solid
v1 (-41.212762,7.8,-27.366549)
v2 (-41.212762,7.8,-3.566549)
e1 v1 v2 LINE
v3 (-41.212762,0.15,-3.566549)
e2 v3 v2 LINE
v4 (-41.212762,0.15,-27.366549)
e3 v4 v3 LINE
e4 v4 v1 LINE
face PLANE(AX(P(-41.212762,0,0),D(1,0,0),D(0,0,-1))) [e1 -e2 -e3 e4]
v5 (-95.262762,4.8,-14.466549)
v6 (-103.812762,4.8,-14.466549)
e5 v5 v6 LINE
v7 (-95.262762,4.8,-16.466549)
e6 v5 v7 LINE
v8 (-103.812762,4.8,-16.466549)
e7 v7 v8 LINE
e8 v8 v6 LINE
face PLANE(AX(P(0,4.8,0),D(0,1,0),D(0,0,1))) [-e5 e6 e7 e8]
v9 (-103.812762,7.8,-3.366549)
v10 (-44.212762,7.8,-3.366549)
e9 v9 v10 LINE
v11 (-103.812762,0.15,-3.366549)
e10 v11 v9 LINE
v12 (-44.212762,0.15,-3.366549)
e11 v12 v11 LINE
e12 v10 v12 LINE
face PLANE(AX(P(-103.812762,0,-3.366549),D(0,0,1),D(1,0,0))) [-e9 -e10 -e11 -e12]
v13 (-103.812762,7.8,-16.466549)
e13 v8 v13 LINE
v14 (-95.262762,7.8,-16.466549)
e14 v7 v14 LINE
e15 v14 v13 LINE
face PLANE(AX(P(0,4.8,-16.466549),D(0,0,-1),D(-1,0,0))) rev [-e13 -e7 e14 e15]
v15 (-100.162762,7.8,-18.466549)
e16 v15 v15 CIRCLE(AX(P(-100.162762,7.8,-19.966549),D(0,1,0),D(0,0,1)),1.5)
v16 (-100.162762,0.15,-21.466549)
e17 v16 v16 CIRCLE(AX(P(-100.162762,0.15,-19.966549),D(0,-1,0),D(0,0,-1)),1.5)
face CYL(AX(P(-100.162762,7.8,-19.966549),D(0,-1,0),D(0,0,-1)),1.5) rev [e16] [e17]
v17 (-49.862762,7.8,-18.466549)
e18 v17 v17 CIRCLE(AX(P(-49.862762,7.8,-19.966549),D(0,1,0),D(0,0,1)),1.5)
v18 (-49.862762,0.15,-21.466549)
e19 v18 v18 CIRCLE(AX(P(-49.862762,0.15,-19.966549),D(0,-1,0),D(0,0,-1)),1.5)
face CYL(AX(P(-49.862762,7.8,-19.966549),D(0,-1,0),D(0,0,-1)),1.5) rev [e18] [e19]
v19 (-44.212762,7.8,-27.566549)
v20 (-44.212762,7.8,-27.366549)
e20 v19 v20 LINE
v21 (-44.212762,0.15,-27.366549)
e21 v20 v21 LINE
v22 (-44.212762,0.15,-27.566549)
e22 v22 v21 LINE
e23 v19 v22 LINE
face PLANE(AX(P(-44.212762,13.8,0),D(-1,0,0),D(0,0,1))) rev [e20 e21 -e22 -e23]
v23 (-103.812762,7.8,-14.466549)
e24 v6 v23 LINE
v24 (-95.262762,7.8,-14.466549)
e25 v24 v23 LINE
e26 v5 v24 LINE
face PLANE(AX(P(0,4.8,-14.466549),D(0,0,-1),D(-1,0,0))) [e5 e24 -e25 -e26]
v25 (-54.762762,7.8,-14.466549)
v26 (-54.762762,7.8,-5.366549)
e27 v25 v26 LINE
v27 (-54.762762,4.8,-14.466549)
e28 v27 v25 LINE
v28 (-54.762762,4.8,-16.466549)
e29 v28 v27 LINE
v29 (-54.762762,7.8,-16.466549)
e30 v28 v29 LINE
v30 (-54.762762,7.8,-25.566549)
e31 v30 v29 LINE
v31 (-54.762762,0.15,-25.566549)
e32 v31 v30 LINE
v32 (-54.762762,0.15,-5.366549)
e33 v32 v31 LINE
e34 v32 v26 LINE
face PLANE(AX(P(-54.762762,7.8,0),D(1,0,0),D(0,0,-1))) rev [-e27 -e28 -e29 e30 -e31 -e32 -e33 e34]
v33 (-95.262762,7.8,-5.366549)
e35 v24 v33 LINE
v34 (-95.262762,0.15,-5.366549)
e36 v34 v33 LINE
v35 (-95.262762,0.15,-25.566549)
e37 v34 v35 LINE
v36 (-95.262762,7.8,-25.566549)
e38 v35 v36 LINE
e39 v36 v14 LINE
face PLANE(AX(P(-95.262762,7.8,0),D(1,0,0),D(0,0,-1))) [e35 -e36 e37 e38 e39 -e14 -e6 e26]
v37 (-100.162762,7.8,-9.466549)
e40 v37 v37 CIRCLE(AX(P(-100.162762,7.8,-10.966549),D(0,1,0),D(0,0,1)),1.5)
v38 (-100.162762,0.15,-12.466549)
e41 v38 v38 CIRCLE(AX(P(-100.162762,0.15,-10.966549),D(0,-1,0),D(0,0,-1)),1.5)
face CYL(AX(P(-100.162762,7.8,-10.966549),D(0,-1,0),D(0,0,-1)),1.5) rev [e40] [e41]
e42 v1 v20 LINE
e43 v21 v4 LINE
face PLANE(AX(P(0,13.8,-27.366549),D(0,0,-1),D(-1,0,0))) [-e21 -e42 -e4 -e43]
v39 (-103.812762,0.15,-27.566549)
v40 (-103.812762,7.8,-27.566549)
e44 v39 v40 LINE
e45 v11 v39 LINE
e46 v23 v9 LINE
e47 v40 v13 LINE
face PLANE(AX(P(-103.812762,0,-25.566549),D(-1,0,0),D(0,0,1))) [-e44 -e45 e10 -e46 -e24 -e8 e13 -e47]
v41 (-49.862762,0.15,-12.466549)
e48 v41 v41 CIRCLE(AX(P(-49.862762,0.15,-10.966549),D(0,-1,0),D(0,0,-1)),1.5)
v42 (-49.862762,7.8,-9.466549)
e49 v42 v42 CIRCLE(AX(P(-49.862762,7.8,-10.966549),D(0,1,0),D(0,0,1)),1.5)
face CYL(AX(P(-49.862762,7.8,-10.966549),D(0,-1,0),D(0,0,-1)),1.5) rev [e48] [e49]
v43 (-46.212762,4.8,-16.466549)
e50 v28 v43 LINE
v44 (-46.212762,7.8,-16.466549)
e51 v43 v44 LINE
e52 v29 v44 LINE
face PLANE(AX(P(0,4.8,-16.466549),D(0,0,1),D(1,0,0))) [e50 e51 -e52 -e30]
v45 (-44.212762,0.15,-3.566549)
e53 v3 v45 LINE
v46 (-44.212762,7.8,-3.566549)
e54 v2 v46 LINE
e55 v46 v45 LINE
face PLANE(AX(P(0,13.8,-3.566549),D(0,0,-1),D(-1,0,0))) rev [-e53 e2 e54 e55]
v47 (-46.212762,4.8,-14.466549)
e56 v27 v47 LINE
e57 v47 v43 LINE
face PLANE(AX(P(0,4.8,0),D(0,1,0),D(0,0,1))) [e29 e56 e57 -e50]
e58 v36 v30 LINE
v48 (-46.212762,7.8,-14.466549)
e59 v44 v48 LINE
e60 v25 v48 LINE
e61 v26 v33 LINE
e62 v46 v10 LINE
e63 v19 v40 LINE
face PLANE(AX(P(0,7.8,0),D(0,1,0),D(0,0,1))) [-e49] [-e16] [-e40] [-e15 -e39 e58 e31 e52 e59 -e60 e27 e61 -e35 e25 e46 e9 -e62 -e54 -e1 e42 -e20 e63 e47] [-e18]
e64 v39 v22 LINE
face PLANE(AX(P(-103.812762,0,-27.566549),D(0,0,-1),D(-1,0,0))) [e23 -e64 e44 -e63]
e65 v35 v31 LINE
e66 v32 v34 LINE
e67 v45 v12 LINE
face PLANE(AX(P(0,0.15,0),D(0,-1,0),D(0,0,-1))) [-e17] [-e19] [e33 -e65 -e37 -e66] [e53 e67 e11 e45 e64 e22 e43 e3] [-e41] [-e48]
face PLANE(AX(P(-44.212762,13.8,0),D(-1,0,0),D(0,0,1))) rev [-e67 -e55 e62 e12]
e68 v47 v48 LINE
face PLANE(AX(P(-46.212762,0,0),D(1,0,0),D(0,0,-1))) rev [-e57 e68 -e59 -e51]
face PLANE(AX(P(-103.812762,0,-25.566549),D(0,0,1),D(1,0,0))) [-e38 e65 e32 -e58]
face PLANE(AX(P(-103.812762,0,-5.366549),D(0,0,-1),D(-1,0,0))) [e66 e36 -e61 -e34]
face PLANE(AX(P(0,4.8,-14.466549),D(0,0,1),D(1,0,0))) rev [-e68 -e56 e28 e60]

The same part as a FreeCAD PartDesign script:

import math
import FreeCAD as App
import Part
import Sketcher
Q = App.Units.Quantity

doc = App.newDocument("Part")
body = doc.addObject("PartDesign::Body", "Body")

# Sketch on XZ plane
sketch1 = doc.addObject("Sketcher::SketchObject", "Sketch")
body.addObject(sketch1)
sketch1.AttachmentSupport = (doc.XZ_Plane, [""])
sketch1.MapMode = "FlatFace"
sketch1.addGeometry(Part.LineSegment(App.Vector(-54.8, -25.5, 0), App.Vector(-54.8, -5.5, 0)), False)
sketch1.addGeometry(Part.LineSegment(App.Vector(-54.8, -5.5, 0), App.Vector(-48.2, -5.5, 0)), False)
sketch1.addGeometry(Part.LineSegment(App.Vector(-48.2, -5.5, 0), App.Vector(-48.2, -25.5, 0)), False)
sketch1.addGeometry(Part.LineSegment(App.Vector(-48.2, -25.5, 0), App.Vector(-54.8, -25.5, 0)), False)
sketch1.addGeometry(Part.Circle(App.Vector(-49.9, -11, 0), App.Vector(0, 0, 1), 1.5), False)
sketch1.addGeometry(Part.Circle(App.Vector(-49.9, -20, 0), App.Vector(0, 0, 1), 1.5), False)
sketch1.addConstraint(Sketcher.Constraint("Coincident", 0, 2, 1, 1))
sketch1.addConstraint(Sketcher.Constraint("Coincident", 1, 2, 2, 1))
sketch1.addConstraint(Sketcher.Constraint("Coincident", 2, 2, 3, 1))
sketch1.addConstraint(Sketcher.Constraint("Coincident", 3, 2, 0, 1))
sketch1.addConstraint(Sketcher.Constraint("Vertical", 0))
sketch1.addConstraint(Sketcher.Constraint("Horizontal", 1))
sketch1.addConstraint(Sketcher.Constraint("Vertical", 2))
sketch1.addConstraint(Sketcher.Constraint("Horizontal", 3))
sketch1.addConstraint(Sketcher.Constraint("Equal", 4, 5))
sketch1.addConstraint(Sketcher.Constraint("Vertical", 4, 3, 5, 3))
sketch1.addConstraint(Sketcher.Constraint("Diameter", 4, Q("3 mm")))
sketch1.addConstraint(Sketcher.Constraint("DistanceY", 0, 1, 0, 2, Q("20 mm")))
sketch1.addConstraint(Sketcher.Constraint("DistanceY", 5, 3, 4, 3, Q("9 mm")))
sketch1.addConstraint(Sketcher.Constraint("DistanceX", 1, 1, 1, 2, Q("6.55 mm")))
sketch1.addConstraint(Sketcher.Constraint("DistanceX", 0, 2, 4, 3, Q("4.9 mm")))
sketch1.addConstraint(Sketcher.Constraint("DistanceY", 4, 3, 0, 2, Q("5.5 mm")))
sketch1.addConstraint(Sketcher.Constraint("DistanceX", 4, 3, -1, 1, Q("49.862762 mm")))
sketch1.addConstraint(Sketcher.Constraint("DistanceY", 4, 3, -1, 1, Q("10.966549 mm")))
pad1 = doc.addObject("PartDesign::Pad", "Pad")
body.addObject(pad1)
pad1.Profile = sketch1
pad1.Length = 7.8
pad1.Reversed = True
body2 = doc.addObject("PartDesign::Body", "Body001")

# Sketch on XZ plane
sketch2 = doc.addObject("Sketcher::SketchObject", "Sketch001")
body2.addObject(sketch2)
sketch2.AttachmentSupport = (doc.getObject("XZ_Plane001"), [""])
sketch2.MapMode = "FlatFace"
sketch2.addGeometry(Part.LineSegment(App.Vector(-101.8, -5.5, 0), App.Vector(-95.3, -5.5, 0)), False)
sketch2.addGeometry(Part.LineSegment(App.Vector(-95.3, -5.5, 0), App.Vector(-95.3, -25.5, 0)), False)
sketch2.addGeometry(Part.LineSegment(App.Vector(-95.3, -25.5, 0), App.Vector(-101.8, -25.5, 0)), False)
sketch2.addGeometry(Part.LineSegment(App.Vector(-101.8, -25.5, 0), App.Vector(-101.8, -5.5, 0)), False)
sketch2.addGeometry(Part.Circle(App.Vector(-100.2, -11, 0), App.Vector(0, 0, 1), 1.5), False)
sketch2.addGeometry(Part.Circle(App.Vector(-100.2, -20, 0), App.Vector(0, 0, 1), 1.5), False)
sketch2.addConstraint(Sketcher.Constraint("Coincident", 0, 2, 1, 1))
sketch2.addConstraint(Sketcher.Constraint("Coincident", 1, 2, 2, 1))
sketch2.addConstraint(Sketcher.Constraint("Coincident", 2, 2, 3, 1))
sketch2.addConstraint(Sketcher.Constraint("Coincident", 3, 2, 0, 1))
sketch2.addConstraint(Sketcher.Constraint("Horizontal", 0))
sketch2.addConstraint(Sketcher.Constraint("Vertical", 1))
sketch2.addConstraint(Sketcher.Constraint("Horizontal", 2))
sketch2.addConstraint(Sketcher.Constraint("Vertical", 3))
sketch2.addConstraint(Sketcher.Constraint("Equal", 4, 5))
sketch2.addConstraint(Sketcher.Constraint("Vertical", 4, 3, 5, 3))
sketch2.addConstraint(Sketcher.Constraint("Diameter", 4, Q("3 mm")))
sketch2.addConstraint(Sketcher.Constraint("DistanceY", 1, 2, 1, 1, Q("20 mm")))
sketch2.addConstraint(Sketcher.Constraint("DistanceY", 5, 3, 4, 3, Q("9 mm")))
sketch2.addConstraint(Sketcher.Constraint("DistanceX", 0, 1, 0, 2, Q("6.55 mm")))
sketch2.addConstraint(Sketcher.Constraint("DistanceX", 4, 3, 0, 2, Q("4.9 mm")))
sketch2.addConstraint(Sketcher.Constraint("DistanceY", 4, 3, 0, 2, Q("5.5 mm")))
sketch2.addConstraint(Sketcher.Constraint("DistanceX", 4, 3, -1, 1, Q("100.162762 mm")))
sketch2.addConstraint(Sketcher.Constraint("DistanceY", 4, 3, -1, 1, Q("10.966549 mm")))
pad2 = doc.addObject("PartDesign::Pad", "Pad001")
body2.addObject(pad2)
pad2.Profile = sketch2
pad2.Length = 7.8
pad2.Reversed = True
body.AllowCompound = True
doc.recompute()

boolean = doc.addObject("PartDesign::Boolean", "Boolean")
body.addObject(boolean)
boolean.Type = "Fuse"
boolean.addObjects([body2])

# Sketch on XZ plane
sketch3 = doc.addObject("Sketcher::SketchObject", "Sketch002")
body.addObject(sketch3)
sketch3.AttachmentSupport = (doc.XZ_Plane, [""])
sketch3.MapMode = "FlatFace"
sketch3.AttachmentOffset = App.Placement(App.Vector(0, 0, -7.8), App.Rotation())
sketch3.addGeometry(Part.LineSegment(App.Vector(-48.2, -25.5, 0), App.Vector(-48.2, -5.5, 0)), False)
sketch3.addGeometry(Part.LineSegment(App.Vector(-48.2, -5.5, 0), App.Vector(-46.2, -5.5, 0)), False)
sketch3.addGeometry(Part.LineSegment(App.Vector(-46.2, -5.5, 0), App.Vector(-46.2, -25.5, 0)), False)
sketch3.addGeometry(Part.LineSegment(App.Vector(-46.2, -25.5, 0), App.Vector(-48.2, -25.5, 0)), False)
sketch3.addGeometry(Part.LineSegment(App.Vector(-103.8, -25.5, 0), App.Vector(-103.8, -5.5, 0)), False)
sketch3.addGeometry(Part.LineSegment(App.Vector(-103.8, -5.5, 0), App.Vector(-101.8, -5.5, 0)), False)
sketch3.addGeometry(Part.LineSegment(App.Vector(-101.8, -5.5, 0), App.Vector(-101.8, -25.5, 0)), False)
sketch3.addGeometry(Part.LineSegment(App.Vector(-101.8, -25.5, 0), App.Vector(-103.8, -25.5, 0)), False)
sketch3.addConstraint(Sketcher.Constraint("Coincident", 0, 2, 1, 1))
sketch3.addConstraint(Sketcher.Constraint("Coincident", 1, 2, 2, 1))
sketch3.addConstraint(Sketcher.Constraint("Coincident", 2, 2, 3, 1))
sketch3.addConstraint(Sketcher.Constraint("Coincident", 3, 2, 0, 1))
sketch3.addConstraint(Sketcher.Constraint("Coincident", 4, 2, 5, 1))
sketch3.addConstraint(Sketcher.Constraint("Coincident", 5, 2, 6, 1))
sketch3.addConstraint(Sketcher.Constraint("Coincident", 6, 2, 7, 1))
sketch3.addConstraint(Sketcher.Constraint("Coincident", 7, 2, 4, 1))
sketch3.addConstraint(Sketcher.Constraint("Vertical", 0))
sketch3.addConstraint(Sketcher.Constraint("Horizontal", 1))
sketch3.addConstraint(Sketcher.Constraint("Vertical", 2))
sketch3.addConstraint(Sketcher.Constraint("Horizontal", 3))
sketch3.addConstraint(Sketcher.Constraint("Vertical", 4))
sketch3.addConstraint(Sketcher.Constraint("Horizontal", 5))
sketch3.addConstraint(Sketcher.Constraint("Vertical", 6))
sketch3.addConstraint(Sketcher.Constraint("Horizontal", 7))
sketch3.addConstraint(Sketcher.Constraint("Horizontal", 1, 2, 4, 2))
sketch3.addConstraint(Sketcher.Constraint("Horizontal", 3, 2, 6, 2))
sketch3.addConstraint(Sketcher.Constraint("Equal", 3, 5))
sketch3.addConstraint(Sketcher.Constraint("DistanceX", 1, 1, 1, 2, Q("2 mm")))
sketch3.addConstraint(Sketcher.Constraint("DistanceY", 0, 1, 0, 2, Q("20 mm")))
sketch3.addConstraint(Sketcher.Constraint("DistanceX", 4, 2, 0, 2, Q("55.6 mm")))
sketch3.addConstraint(Sketcher.Constraint("DistanceX", 0, 2, -1, 1, Q("48.212762 mm")))
sketch3.addConstraint(Sketcher.Constraint("DistanceY", 0, 2, -1, 1, Q("5.466549 mm")))
pad3 = doc.addObject("PartDesign::Pad", "Pad002")
body.addObject(pad3)
pad3.Profile = sketch3
pad3.Length = 7.8

# Sketch on XZ plane
sketch4 = doc.addObject("Sketcher::SketchObject", "Sketch003")
body.addObject(sketch4)
sketch4.AttachmentSupport = (doc.XZ_Plane, [""])
sketch4.MapMode = "FlatFace"
sketch4.AttachmentOffset = App.Placement(App.Vector(0, 0, -7.8), App.Rotation())
sketch4.addGeometry(Part.LineSegment(App.Vector(-103.81, -5.47, 0), App.Vector(-103.81, -5.37, 0)), False)
sketch4.addGeometry(Part.LineSegment(App.Vector(-103.81, -5.37, 0), App.Vector(-95.26, -5.37, 0)), False)
sketch4.addGeometry(Part.LineSegment(App.Vector(-95.26, -5.37, 0), App.Vector(-95.26, -5.47, 0)), False)
sketch4.addGeometry(Part.LineSegment(App.Vector(-95.26, -5.47, 0), App.Vector(-103.81, -5.47, 0)), False)
sketch4.addGeometry(Part.LineSegment(App.Vector(-103.81, -25.57, 0), App.Vector(-103.81, -25.47, 0)), False)
sketch4.addGeometry(Part.LineSegment(App.Vector(-103.81, -25.47, 0), App.Vector(-95.26, -25.47, 0)), False)
sketch4.addGeometry(Part.LineSegment(App.Vector(-95.26, -25.47, 0), App.Vector(-95.26, -25.57, 0)), False)
sketch4.addGeometry(Part.LineSegment(App.Vector(-95.26, -25.57, 0), App.Vector(-103.81, -25.57, 0)), False)
sketch4.addGeometry(Part.LineSegment(App.Vector(-54.76, -25.57, 0), App.Vector(-54.76, -25.47, 0)), False)
sketch4.addGeometry(Part.LineSegment(App.Vector(-54.76, -25.47, 0), App.Vector(-46.21, -25.47, 0)), False)
sketch4.addGeometry(Part.LineSegment(App.Vector(-46.21, -25.47, 0), App.Vector(-46.21, -25.57, 0)), False)
sketch4.addGeometry(Part.LineSegment(App.Vector(-46.21, -25.57, 0), App.Vector(-54.76, -25.57, 0)), False)
sketch4.addGeometry(Part.LineSegment(App.Vector(-54.76, -5.47, 0), App.Vector(-54.76, -5.37, 0)), False)
sketch4.addGeometry(Part.LineSegment(App.Vector(-54.76, -5.37, 0), App.Vector(-46.21, -5.37, 0)), False)
sketch4.addGeometry(Part.LineSegment(App.Vector(-46.21, -5.37, 0), App.Vector(-46.21, -5.47, 0)), False)
sketch4.addGeometry(Part.LineSegment(App.Vector(-46.21, -5.47, 0), App.Vector(-54.76, -5.47, 0)), False)
sketch4.addConstraint(Sketcher.Constraint("Coincident", 0, 2, 1, 1))
sketch4.addConstraint(Sketcher.Constraint("Coincident", 1, 2, 2, 1))
sketch4.addConstraint(Sketcher.Constraint("Coincident", 2, 2, 3, 1))
sketch4.addConstraint(Sketcher.Constraint("Coincident", 3, 2, 0, 1))
sketch4.addConstraint(Sketcher.Constraint("Coincident", 4, 2, 5, 1))
sketch4.addConstraint(Sketcher.Constraint("Coincident", 5, 2, 6, 1))
sketch4.addConstraint(Sketcher.Constraint("Coincident", 6, 2, 7, 1))
sketch4.addConstraint(Sketcher.Constraint("Coincident", 7, 2, 4, 1))
sketch4.addConstraint(Sketcher.Constraint("Coincident", 8, 2, 9, 1))
sketch4.addConstraint(Sketcher.Constraint("Coincident", 9, 2, 10, 1))
sketch4.addConstraint(Sketcher.Constraint("Coincident", 10, 2, 11, 1))
sketch4.addConstraint(Sketcher.Constraint("Coincident", 11, 2, 8, 1))
sketch4.addConstraint(Sketcher.Constraint("Coincident", 12, 2, 13, 1))
sketch4.addConstraint(Sketcher.Constraint("Coincident", 13, 2, 14, 1))
sketch4.addConstraint(Sketcher.Constraint("Coincident", 14, 2, 15, 1))
sketch4.addConstraint(Sketcher.Constraint("Coincident", 15, 2, 12, 1))
sketch4.addConstraint(Sketcher.Constraint("Vertical", 0))
sketch4.addConstraint(Sketcher.Constraint("Horizontal", 1))
sketch4.addConstraint(Sketcher.Constraint("Vertical", 2))
sketch4.addConstraint(Sketcher.Constraint("Horizontal", 3))
sketch4.addConstraint(Sketcher.Constraint("Vertical", 4))
sketch4.addConstraint(Sketcher.Constraint("Horizontal", 5))
sketch4.addConstraint(Sketcher.Constraint("Vertical", 6))
sketch4.addConstraint(Sketcher.Constraint("Horizontal", 7))
sketch4.addConstraint(Sketcher.Constraint("Vertical", 8))
sketch4.addConstraint(Sketcher.Constraint("Horizontal", 9))
sketch4.addConstraint(Sketcher.Constraint("Vertical", 10))
sketch4.addConstraint(Sketcher.Constraint("Horizontal", 11))
sketch4.addConstraint(Sketcher.Constraint("Vertical", 12))
sketch4.addConstraint(Sketcher.Constraint("Horizontal", 13))
sketch4.addConstraint(Sketcher.Constraint("Vertical", 14))
sketch4.addConstraint(Sketcher.Constraint("Horizontal", 15))
sketch4.addConstraint(Sketcher.Constraint("Horizontal", 5, 2, 8, 2))
sketch4.addConstraint(Sketcher.Constraint("Horizontal", 7, 2, 10, 2))
sketch4.addConstraint(Sketcher.Constraint("Horizontal", 1, 2, 12, 2))
sketch4.addConstraint(Sketcher.Constraint("Horizontal", 3, 2, 14, 2))
sketch4.addConstraint(Sketcher.Constraint("Vertical", 3, 2, 4, 2))
sketch4.addConstraint(Sketcher.Constraint("Vertical", 2, 2, 5, 2))
sketch4.addConstraint(Sketcher.Constraint("Vertical", 11, 2, 12, 2))
sketch4.addConstraint(Sketcher.Constraint("Vertical", 10, 2, 13, 2))
sketch4.addConstraint(Sketcher.Constraint("Equal", 7, 9))
sketch4.addConstraint(Sketcher.Constraint("Equal", 2, 4))
sketch4.addConstraint(Sketcher.Constraint("DistanceY", 0, 1, 0, 2, Q("0.1 mm")))
sketch4.addConstraint(Sketcher.Constraint("DistanceY", 4, 2, 3, 2, Q("20 mm")))
sketch4.addConstraint(Sketcher.Constraint("DistanceX", 1, 1, 1, 2, Q("8.55 mm")))
sketch4.addConstraint(Sketcher.Constraint("DistanceX", 5, 2, 8, 2, Q("40.5 mm")))
sketch4.addConstraint(Sketcher.Constraint("DistanceX", 0, 2, -1, 1, Q("103.812762 mm")))
sketch4.addConstraint(Sketcher.Constraint("DistanceY", 0, 2, -1, 1, Q("5.366549 mm")))
pad4 = doc.addObject("PartDesign::Pad", "Pad003")
body.addObject(pad4)
pad4.Profile = sketch4
pad4.Length = 7.8

# Sketch on XZ plane
sketch5 = doc.addObject("Sketcher::SketchObject", "Sketch004")
body.addObject(sketch5)
sketch5.AttachmentSupport = (doc.XZ_Plane, [""])
sketch5.MapMode = "FlatFace"
sketch5.AttachmentOffset = App.Placement(App.Vector(0, 0, -7.8), App.Rotation())
sketch5.addGeometry(Part.LineSegment(App.Vector(-103.8, -27.6, 0), App.Vector(-103.8, -25.6, 0)), False)
sketch5.addGeometry(Part.LineSegment(App.Vector(-103.8, -25.6, 0), App.Vector(-46.2, -25.6, 0)), False)
sketch5.addGeometry(Part.LineSegment(App.Vector(-46.2, -25.6, 0), App.Vector(-46.2, -27.6, 0)), False)
sketch5.addGeometry(Part.LineSegment(App.Vector(-46.2, -27.6, 0), App.Vector(-103.8, -27.6, 0)), False)
sketch5.addGeometry(Part.LineSegment(App.Vector(-103.8, -5.4, 0), App.Vector(-103.8, -3.4, 0)), False)
sketch5.addGeometry(Part.LineSegment(App.Vector(-103.8, -3.4, 0), App.Vector(-46.2, -3.4, 0)), False)
sketch5.addGeometry(Part.LineSegment(App.Vector(-46.2, -3.4, 0), App.Vector(-46.2, -5.4, 0)), False)
sketch5.addGeometry(Part.LineSegment(App.Vector(-46.2, -5.4, 0), App.Vector(-103.8, -5.4, 0)), False)
sketch5.addConstraint(Sketcher.Constraint("Coincident", 0, 2, 1, 1))
sketch5.addConstraint(Sketcher.Constraint("Coincident", 1, 2, 2, 1))
sketch5.addConstraint(Sketcher.Constraint("Coincident", 2, 2, 3, 1))
sketch5.addConstraint(Sketcher.Constraint("Coincident", 3, 2, 0, 1))
sketch5.addConstraint(Sketcher.Constraint("Coincident", 4, 2, 5, 1))
sketch5.addConstraint(Sketcher.Constraint("Coincident", 5, 2, 6, 1))
sketch5.addConstraint(Sketcher.Constraint("Coincident", 6, 2, 7, 1))
sketch5.addConstraint(Sketcher.Constraint("Coincident", 7, 2, 4, 1))
sketch5.addConstraint(Sketcher.Constraint("Vertical", 0))
sketch5.addConstraint(Sketcher.Constraint("Horizontal", 1))
sketch5.addConstraint(Sketcher.Constraint("Vertical", 2))
sketch5.addConstraint(Sketcher.Constraint("Horizontal", 3))
sketch5.addConstraint(Sketcher.Constraint("Vertical", 4))
sketch5.addConstraint(Sketcher.Constraint("Horizontal", 5))
sketch5.addConstraint(Sketcher.Constraint("Vertical", 6))
sketch5.addConstraint(Sketcher.Constraint("Horizontal", 7))
sketch5.addConstraint(Sketcher.Constraint("Vertical", 3, 2, 4, 2))
sketch5.addConstraint(Sketcher.Constraint("Vertical", 2, 2, 5, 2))
sketch5.addConstraint(Sketcher.Constraint("Equal", 2, 4))
sketch5.addConstraint(Sketcher.Constraint("DistanceY", 0, 1, 0, 2, Q("2 mm")))
sketch5.addConstraint(Sketcher.Constraint("DistanceX", 1, 1, 1, 2, Q("57.6 mm")))
sketch5.addConstraint(Sketcher.Constraint("DistanceY", 0, 2, 4, 2, Q("22.2 mm")))
sketch5.addConstraint(Sketcher.Constraint("DistanceX", 0, 2, -1, 1, Q("103.812762 mm")))
sketch5.addConstraint(Sketcher.Constraint("DistanceY", 0, 2, -1, 1, Q("25.566549 mm")))
pad5 = doc.addObject("PartDesign::Pad", "Pad004")
body.addObject(pad5)
pad5.Profile = sketch5
pad5.Length = 7.8

# Sketch on XZ plane
sketch6 = doc.addObject("Sketcher::SketchObject", "Sketch005")
body.addObject(sketch6)
sketch6.AttachmentSupport = (doc.XZ_Plane, [""])
sketch6.MapMode = "FlatFace"
sketch6.AttachmentOffset = App.Placement(App.Vector(0, 0, -7.8), App.Rotation())
sketch6.addGeometry(Part.LineSegment(App.Vector(-103.8, -16.5, 0), App.Vector(-103.8, -14.5, 0)), False)
sketch6.addGeometry(Part.LineSegment(App.Vector(-103.8, -14.5, 0), App.Vector(-95.3, -14.5, 0)), False)
sketch6.addGeometry(Part.LineSegment(App.Vector(-95.3, -14.5, 0), App.Vector(-95.3, -16.5, 0)), False)
sketch6.addGeometry(Part.LineSegment(App.Vector(-95.3, -16.5, 0), App.Vector(-103.8, -16.5, 0)), False)
sketch6.addGeometry(Part.LineSegment(App.Vector(-54.8, -16.5, 0), App.Vector(-54.8, -14.5, 0)), False)
sketch6.addGeometry(Part.LineSegment(App.Vector(-54.8, -14.5, 0), App.Vector(-46.2, -14.5, 0)), False)
sketch6.addGeometry(Part.LineSegment(App.Vector(-46.2, -14.5, 0), App.Vector(-46.2, -16.5, 0)), False)
sketch6.addGeometry(Part.LineSegment(App.Vector(-46.2, -16.5, 0), App.Vector(-54.8, -16.5, 0)), False)
sketch6.addConstraint(Sketcher.Constraint("Coincident", 0, 2, 1, 1))
sketch6.addConstraint(Sketcher.Constraint("Coincident", 1, 2, 2, 1))
sketch6.addConstraint(Sketcher.Constraint("Coincident", 2, 2, 3, 1))
sketch6.addConstraint(Sketcher.Constraint("Coincident", 3, 2, 0, 1))
sketch6.addConstraint(Sketcher.Constraint("Coincident", 4, 2, 5, 1))
sketch6.addConstraint(Sketcher.Constraint("Coincident", 5, 2, 6, 1))
sketch6.addConstraint(Sketcher.Constraint("Coincident", 6, 2, 7, 1))
sketch6.addConstraint(Sketcher.Constraint("Coincident", 7, 2, 4, 1))
sketch6.addConstraint(Sketcher.Constraint("Vertical", 0))
sketch6.addConstraint(Sketcher.Constraint("Horizontal", 1))
sketch6.addConstraint(Sketcher.Constraint("Vertical", 2))
sketch6.addConstraint(Sketcher.Constraint("Horizontal", 3))
sketch6.addConstraint(Sketcher.Constraint("Vertical", 4))
sketch6.addConstraint(Sketcher.Constraint("Horizontal", 5))
sketch6.addConstraint(Sketcher.Constraint("Vertical", 6))
sketch6.addConstraint(Sketcher.Constraint("Horizontal", 7))
sketch6.addConstraint(Sketcher.Constraint("Horizontal", 1, 2, 4, 2))
sketch6.addConstraint(Sketcher.Constraint("Horizontal", 3, 2, 6, 2))
sketch6.addConstraint(Sketcher.Constraint("Equal", 3, 5))
sketch6.addConstraint(Sketcher.Constraint("DistanceY", 0, 1, 0, 2, Q("2 mm")))
sketch6.addConstraint(Sketcher.Constraint("DistanceX", 1, 1, 1, 2, Q("8.55 mm")))
sketch6.addConstraint(Sketcher.Constraint("DistanceX", 1, 2, 4, 2, Q("40.5 mm")))
sketch6.addConstraint(Sketcher.Constraint("DistanceX", 0, 2, -1, 1, Q("103.812762 mm")))
sketch6.addConstraint(Sketcher.Constraint("DistanceY", 0, 2, -1, 1, Q("14.466549 mm")))
pocket1 = doc.addObject("PartDesign::Pocket", "Pocket")
body.addObject(pocket1)
pocket1.Profile = sketch6
pocket1.Length = 3
pocket1.Reversed = True

# Sketch on XZ plane
sketch7 = doc.addObject("Sketcher::SketchObject", "Sketch006")
body.addObject(sketch7)
sketch7.AttachmentSupport = (doc.XZ_Plane, [""])
sketch7.MapMode = "FlatFace"
sketch7.AttachmentOffset = App.Placement(App.Vector(0, 0, -7.8), App.Rotation())
sketch7.addGeometry(Part.LineSegment(App.Vector(-97.7, -3.4, 0), App.Vector(-97.7, 0, 0)), False)
sketch7.addGeometry(Part.ArcOfCircle(Part.Circle(App.Vector(-93.2, 0, 0), App.Vector(0, 0, 1), 4.5), math.radians(90), math.radians(180)), False)
sketch7.addGeometry(Part.LineSegment(App.Vector(-93.2, 4.5, 0), App.Vector(-77.2, 4.5, 0)), False)
sketch7.addGeometry(Part.ArcOfCircle(Part.Circle(App.Vector(-77.2, 0, 0), App.Vector(0, 0, 1), 4.5), math.radians(0), math.radians(90)), False)
sketch7.addGeometry(Part.LineSegment(App.Vector(-72.7, 0, 0), App.Vector(-72.7, -3.4, 0)), False)
sketch7.addGeometry(Part.LineSegment(App.Vector(-72.7, -3.4, 0), App.Vector(-97.7, -3.4, 0)), False)
sketch7.addGeometry(Part.Circle(App.Vector(-93.2, 0, 0), App.Vector(0, 0, 1), 1.5), False)
sketch7.addGeometry(Part.Circle(App.Vector(-77.2, 0, 0), App.Vector(0, 0, 1), 1.5), False)
sketch7.addGeometry(Part.ArcOfCircle(Part.Circle(App.Vector(-77.2, -31, 0), App.Vector(0, 0, 1), 4.5), math.radians(-90), math.radians(0)), False)
sketch7.addGeometry(Part.LineSegment(App.Vector(-77.2, -35.5, 0), App.Vector(-93.2, -35.5, 0)), False)
sketch7.addGeometry(Part.ArcOfCircle(Part.Circle(App.Vector(-93.2, -31, 0), App.Vector(0, 0, 1), 4.5), math.radians(-180), math.radians(-90)), False)
sketch7.addGeometry(Part.LineSegment(App.Vector(-97.7, -31, 0), App.Vector(-97.7, -27.6, 0)), False)
sketch7.addGeometry(Part.LineSegment(App.Vector(-97.7, -27.6, 0), App.Vector(-72.7, -27.6, 0)), False)
sketch7.addGeometry(Part.LineSegment(App.Vector(-72.7, -27.6, 0), App.Vector(-72.7, -31, 0)), False)
sketch7.addGeometry(Part.Circle(App.Vector(-77.2, -31, 0), App.Vector(0, 0, 1), 1.5), False)
sketch7.addGeometry(Part.Circle(App.Vector(-93.2, -31, 0), App.Vector(0, 0, 1), 1.5), False)
sketch7.addConstraint(Sketcher.Constraint("Tangent", 0, 2, 1, 2))
sketch7.addConstraint(Sketcher.Constraint("Tangent", 1, 1, 2, 1))
sketch7.addConstraint(Sketcher.Constraint("Tangent", 2, 2, 3, 2))
sketch7.addConstraint(Sketcher.Constraint("Tangent", 3, 1, 4, 1))
sketch7.addConstraint(Sketcher.Constraint("Coincident", 4, 2, 5, 1))
sketch7.addConstraint(Sketcher.Constraint("Coincident", 5, 2, 0, 1))
sketch7.addConstraint(Sketcher.Constraint("Tangent", 8, 1, 9, 1))
sketch7.addConstraint(Sketcher.Constraint("Tangent", 9, 2, 10, 2))
sketch7.addConstraint(Sketcher.Constraint("Tangent", 10, 1, 11, 1))
sketch7.addConstraint(Sketcher.Constraint("Coincident", 11, 2, 12, 1))
sketch7.addConstraint(Sketcher.Constraint("Coincident", 12, 2, 13, 1))
sketch7.addConstraint(Sketcher.Constraint("Tangent", 13, 2, 8, 2))
sketch7.addConstraint(Sketcher.Constraint("Vertical", 0))
sketch7.addConstraint(Sketcher.Constraint("Horizontal", 2))
sketch7.addConstraint(Sketcher.Constraint("Vertical", 4))
sketch7.addConstraint(Sketcher.Constraint("Horizontal", 5))
sketch7.addConstraint(Sketcher.Constraint("Horizontal", 9))
sketch7.addConstraint(Sketcher.Constraint("Vertical", 11))
sketch7.addConstraint(Sketcher.Constraint("Horizontal", 12))
sketch7.addConstraint(Sketcher.Constraint("Vertical", 13))
sketch7.addConstraint(Sketcher.Constraint("Coincident", 6, 3, 1, 3))
sketch7.addConstraint(Sketcher.Constraint("Coincident", 7, 3, 3, 3))
sketch7.addConstraint(Sketcher.Constraint("Coincident", 14, 3, 8, 3))
sketch7.addConstraint(Sketcher.Constraint("Coincident", 15, 3, 10, 3))
sketch7.addConstraint(Sketcher.Constraint("Equal", 1, 3))
sketch7.addConstraint(Sketcher.Constraint("Equal", 6, 7))
sketch7.addConstraint(Sketcher.Constraint("Equal", 3, 8))
sketch7.addConstraint(Sketcher.Constraint("Equal", 8, 10))
sketch7.addConstraint(Sketcher.Constraint("Equal", 7, 14))
sketch7.addConstraint(Sketcher.Constraint("Equal", 14, 15))
sketch7.addConstraint(Sketcher.Constraint("Vertical", 7, 3, 8, 3))
sketch7.addConstraint(Sketcher.Constraint("Vertical", 6, 3, 10, 3))
sketch7.addConstraint(Sketcher.Constraint("Diameter", 6, Q("3 mm")))
sketch7.addConstraint(Sketcher.Constraint("Radius", 1, Q("4.5 mm")))
sketch7.addConstraint(Sketcher.Constraint("DistanceX", 2, 1, 2, 2, Q("16.000001 mm")))
sketch7.addConstraint(Sketcher.Constraint("DistanceY", 8, 3, 7, 3, Q("30.999998 mm")))
sketch7.addConstraint(Sketcher.Constraint("DistanceY", 0, 1, 0, 2, Q("3.399941 mm")))
sketch7.addConstraint(Sketcher.Constraint("DistanceY", 11, 1, 11, 2, Q("3.400057 mm")))
sketch7.addConstraint(Sketcher.Constraint("DistanceY", 4, 2, -1, 1, Q("3.366549 mm")))
sketch7.addConstraint(Sketcher.Constraint("DistanceX", 1, 3, -1, 1, Q("93.160966 mm")))
pad6 = doc.addObject("PartDesign::Pad", "Pad005")
body.addObject(pad6)
pad6.Profile = sketch7
pad6.Length = 7.8

# Sketch on XZ plane
sketch8 = doc.addObject("Sketcher::SketchObject", "Sketch007")
body.addObject(sketch8)
sketch8.AttachmentSupport = (doc.XZ_Plane, [""])
sketch8.MapMode = "FlatFace"
sketch8.AttachmentOffset = App.Placement(App.Vector(0, 0, -7.8), App.Rotation())
sketch8.addGeometry(Part.LineSegment(App.Vector(-72.7, -3.4, 0), App.Vector(-97.7, -3.4, 0)), False)
sketch8.addGeometry(Part.LineSegment(App.Vector(-97.7, -3.4, 0), App.Vector(-97.7, 0, 0)), False)
sketch8.addGeometry(Part.ArcOfCircle(Part.Circle(App.Vector(-93.2, 0, 0), App.Vector(0, 0, 1), 4.5), math.radians(90), math.radians(180)), False)
sketch8.addGeometry(Part.LineSegment(App.Vector(-93.2, 4.5, 0), App.Vector(-77.2, 4.5, 0)), False)
sketch8.addGeometry(Part.ArcOfCircle(Part.Circle(App.Vector(-77.2, 0, 0), App.Vector(0, 0, 1), 4.5), math.radians(0), math.radians(90)), False)
sketch8.addGeometry(Part.LineSegment(App.Vector(-72.7, 0, 0), App.Vector(-72.7, -3.4, 0)), False)
sketch8.addGeometry(Part.Circle(App.Vector(-77.2, 0, 0), App.Vector(0, 0, 1), 1.5), False)
sketch8.addGeometry(Part.Circle(App.Vector(-93.2, 0, 0), App.Vector(0, 0, 1), 1.5), False)
sketch8.addGeometry(Part.LineSegment(App.Vector(-77.2, -35.5, 0), App.Vector(-93.2, -35.5, 0)), False)
sketch8.addGeometry(Part.ArcOfCircle(Part.Circle(App.Vector(-93.2, -31, 0), App.Vector(0, 0, 1), 4.5), math.radians(-180), math.radians(-90)), False)
sketch8.addGeometry(Part.LineSegment(App.Vector(-97.7, -31, 0), App.Vector(-97.7, -27.6, 0)), False)
sketch8.addGeometry(Part.LineSegment(App.Vector(-97.7, -27.6, 0), App.Vector(-72.7, -27.6, 0)), False)
sketch8.addGeometry(Part.LineSegment(App.Vector(-72.7, -27.6, 0), App.Vector(-72.7, -31, 0)), False)
sketch8.addGeometry(Part.ArcOfCircle(Part.Circle(App.Vector(-77.2, -31, 0), App.Vector(0, 0, 1), 4.5), math.radians(-90), math.radians(0)), False)
sketch8.addConstraint(Sketcher.Constraint("Coincident", 0, 2, 1, 1))
sketch8.addConstraint(Sketcher.Constraint("Tangent", 1, 2, 2, 2))
sketch8.addConstraint(Sketcher.Constraint("Tangent", 2, 1, 3, 1))
sketch8.addConstraint(Sketcher.Constraint("Tangent", 3, 2, 4, 2))
sketch8.addConstraint(Sketcher.Constraint("Tangent", 4, 1, 5, 1))
sketch8.addConstraint(Sketcher.Constraint("Coincident", 5, 2, 0, 1))
sketch8.addConstraint(Sketcher.Constraint("Tangent", 8, 2, 9, 2))
sketch8.addConstraint(Sketcher.Constraint("Tangent", 9, 1, 10, 1))
sketch8.addConstraint(Sketcher.Constraint("Coincident", 10, 2, 11, 1))
sketch8.addConstraint(Sketcher.Constraint("Coincident", 11, 2, 12, 1))
sketch8.addConstraint(Sketcher.Constraint("Tangent", 12, 2, 13, 2))
sketch8.addConstraint(Sketcher.Constraint("Tangent", 13, 1, 8, 1))
sketch8.addConstraint(Sketcher.Constraint("Horizontal", 0))
sketch8.addConstraint(Sketcher.Constraint("Vertical", 1))
sketch8.addConstraint(Sketcher.Constraint("Horizontal", 3))
sketch8.addConstraint(Sketcher.Constraint("Vertical", 5))
sketch8.addConstraint(Sketcher.Constraint("Horizontal", 8))
sketch8.addConstraint(Sketcher.Constraint("Vertical", 10))
sketch8.addConstraint(Sketcher.Constraint("Horizontal", 11))
sketch8.addConstraint(Sketcher.Constraint("Vertical", 12))
sketch8.addConstraint(Sketcher.Constraint("Coincident", 6, 3, 4, 3))
sketch8.addConstraint(Sketcher.Constraint("Coincident", 7, 3, 2, 3))
sketch8.addConstraint(Sketcher.Constraint("Equal", 2, 4))
sketch8.addConstraint(Sketcher.Constraint("Equal", 6, 7))
sketch8.addConstraint(Sketcher.Constraint("Equal", 4, 9))
sketch8.addConstraint(Sketcher.Constraint("Equal", 9, 13))
sketch8.addConstraint(Sketcher.Constraint("Vertical", 7, 3, 9, 3))
sketch8.addConstraint(Sketcher.Constraint("Vertical", 6, 3, 13, 3))
sketch8.addConstraint(Sketcher.Constraint("Diameter", 6, Q("3 mm")))
sketch8.addConstraint(Sketcher.Constraint("Radius", 2, Q("4.5 mm")))
sketch8.addConstraint(Sketcher.Constraint("DistanceX", 0, 2, 0, 1, Q("25.000001 mm")))
sketch8.addConstraint(Sketcher.Constraint("DistanceY", 9, 3, 2, 3, Q("30.999998 mm")))
sketch8.addConstraint(Sketcher.Constraint("DistanceY", 10, 2, 0, 2, Q("24.2 mm")))
sketch8.addConstraint(Sketcher.Constraint("DistanceY", 1, 1, 1, 2, Q("3.399941 mm")))
sketch8.addConstraint(Sketcher.Constraint("DistanceY", 0, 2, -1, 1, Q("3.366549 mm")))
sketch8.addConstraint(Sketcher.Constraint("DistanceX", 2, 3, -1, 1, Q("93.160966 mm")))
pocket2 = doc.addObject("PartDesign::Pocket", "Pocket001")
body.addObject(pocket2)
pocket2.Profile = sketch8
pocket2.Length = 4
pocket2.Reversed = True

# Sketch on YZ plane
sketch9 = doc.addObject("Sketcher::SketchObject", "Sketch008")
body.addObject(sketch9)
sketch9.AttachmentSupport = (doc.YZ_Plane, [""])
sketch9.MapMode = "FlatFace"
sketch9.AttachmentOffset = App.Placement(App.Vector(0, 0, -46.212762), App.Rotation())
sketch9.addGeometry(Part.LineSegment(App.Vector(8, -3, 0), App.Vector(0, -3, 0)), False)
sketch9.addGeometry(Part.LineSegment(App.Vector(0, -3, 0), App.Vector(0, -28, 0)), False)
sketch9.addGeometry(Part.LineSegment(App.Vector(0, -28, 0), App.Vector(8, -28, 0)), False)
sketch9.addGeometry(Part.LineSegment(App.Vector(8, -28, 0), App.Vector(8, -3, 0)), False)
sketch9.addConstraint(Sketcher.Constraint("Coincident", 0, 2, 1, 1))
sketch9.addConstraint(Sketcher.Constraint("Coincident", 1, 2, 2, 1))
sketch9.addConstraint(Sketcher.Constraint("Coincident", 2, 2, 3, 1))
sketch9.addConstraint(Sketcher.Constraint("Coincident", 3, 2, 0, 1))
sketch9.addConstraint(Sketcher.Constraint("Horizontal", 0))
sketch9.addConstraint(Sketcher.Constraint("Vertical", 1))
sketch9.addConstraint(Sketcher.Constraint("Horizontal", 2))
sketch9.addConstraint(Sketcher.Constraint("Vertical", 3))
sketch9.addConstraint(Sketcher.Constraint("PointOnObject", 0, 2, -2))
sketch9.addConstraint(Sketcher.Constraint("DistanceX", 0, 2, 0, 1, Q("7.8 mm")))
sketch9.addConstraint(Sketcher.Constraint("DistanceY", 1, 2, 1, 1, Q("24.2 mm")))
sketch9.addConstraint(Sketcher.Constraint("DistanceY", 0, 2, -1, 1, Q("3.366549 mm")))
pad7 = doc.addObject("PartDesign::Pad", "Pad006")
body.addObject(pad7)
pad7.Profile = sketch9
pad7.Length = 5

# Sketch on XZ plane
sketch10 = doc.addObject("Sketcher::SketchObject", "Sketch009")
body.addObject(sketch10)
sketch10.AttachmentSupport = (doc.XZ_Plane, [""])
sketch10.MapMode = "FlatFace"
sketch10.addGeometry(Part.LineSegment(App.Vector(-97.7, 0, 0), App.Vector(-97.7, -3.4, 0)), False)
sketch10.addGeometry(Part.LineSegment(App.Vector(-97.7, -3.4, 0), App.Vector(-72.7, -3.4, 0)), False)
sketch10.addGeometry(Part.LineSegment(App.Vector(-72.7, -3.4, 0), App.Vector(-72.7, 0, 0)), False)
sketch10.addGeometry(Part.ArcOfCircle(Part.Circle(App.Vector(-77.2, 0, 0), App.Vector(0, 0, 1), 4.5), math.radians(0), math.radians(90)), False)
sketch10.addGeometry(Part.LineSegment(App.Vector(-77.2, 4.5, 0), App.Vector(-93.2, 4.5, 0)), False)
sketch10.addGeometry(Part.ArcOfCircle(Part.Circle(App.Vector(-93.2, 0, 0), App.Vector(0, 0, 1), 4.5), math.radians(90), math.radians(180)), False)
sketch10.addGeometry(Part.Circle(App.Vector(-93.2, 0, 0), App.Vector(0, 0, 1), 1.5), False)
sketch10.addGeometry(Part.Circle(App.Vector(-77.2, 0, 0), App.Vector(0, 0, 1), 1.5), False)
sketch10.addGeometry(Part.LineSegment(App.Vector(-72.7, -27.6, 0), App.Vector(-97.7, -27.6, 0)), False)
sketch10.addGeometry(Part.LineSegment(App.Vector(-97.7, -27.6, 0), App.Vector(-97.7, -31, 0)), False)
sketch10.addGeometry(Part.ArcOfCircle(Part.Circle(App.Vector(-93.2, -31, 0), App.Vector(0, 0, 1), 4.5), math.radians(-180), math.radians(-90)), False)
sketch10.addGeometry(Part.LineSegment(App.Vector(-93.2, -35.5, 0), App.Vector(-77.2, -35.5, 0)), False)
sketch10.addGeometry(Part.ArcOfCircle(Part.Circle(App.Vector(-77.2, -31, 0), App.Vector(0, 0, 1), 4.5), math.radians(-90), math.radians(0)), False)
sketch10.addGeometry(Part.LineSegment(App.Vector(-72.7, -31, 0), App.Vector(-72.7, -27.6, 0)), False)
sketch10.addGeometry(Part.Circle(App.Vector(-93.2, -31, 0), App.Vector(0, 0, 1), 1.5), False)
sketch10.addGeometry(Part.Circle(App.Vector(-77.2, -31, 0), App.Vector(0, 0, 1), 1.5), False)
sketch10.addConstraint(Sketcher.Constraint("Coincident", 0, 2, 1, 1))
sketch10.addConstraint(Sketcher.Constraint("Coincident", 1, 2, 2, 1))
sketch10.addConstraint(Sketcher.Constraint("Tangent", 2, 2, 3, 1))
sketch10.addConstraint(Sketcher.Constraint("Tangent", 3, 2, 4, 1))
sketch10.addConstraint(Sketcher.Constraint("Tangent", 4, 2, 5, 1))
sketch10.addConstraint(Sketcher.Constraint("Tangent", 5, 2, 0, 1))
sketch10.addConstraint(Sketcher.Constraint("Coincident", 8, 2, 9, 1))
sketch10.addConstraint(Sketcher.Constraint("Tangent", 9, 2, 10, 1))
sketch10.addConstraint(Sketcher.Constraint("Tangent", 10, 2, 11, 1))
sketch10.addConstraint(Sketcher.Constraint("Tangent", 11, 2, 12, 1))
sketch10.addConstraint(Sketcher.Constraint("Tangent", 12, 2, 13, 1))
sketch10.addConstraint(Sketcher.Constraint("Coincident", 13, 2, 8, 1))
sketch10.addConstraint(Sketcher.Constraint("Vertical", 0))
sketch10.addConstraint(Sketcher.Constraint("Horizontal", 1))
sketch10.addConstraint(Sketcher.Constraint("Vertical", 2))
sketch10.addConstraint(Sketcher.Constraint("Horizontal", 4))
sketch10.addConstraint(Sketcher.Constraint("Horizontal", 8))
sketch10.addConstraint(Sketcher.Constraint("Vertical", 9))
sketch10.addConstraint(Sketcher.Constraint("Horizontal", 11))
sketch10.addConstraint(Sketcher.Constraint("Vertical", 13))
sketch10.addConstraint(Sketcher.Constraint("Coincident", 6, 3, 5, 3))
sketch10.addConstraint(Sketcher.Constraint("Coincident", 7, 3, 3, 3))
sketch10.addConstraint(Sketcher.Constraint("Coincident", 14, 3, 10, 3))
sketch10.addConstraint(Sketcher.Constraint("Coincident", 15, 3, 12, 3))
sketch10.addConstraint(Sketcher.Constraint("Equal", 3, 5))
sketch10.addConstraint(Sketcher.Constraint("Equal", 6, 7))
sketch10.addConstraint(Sketcher.Constraint("Equal", 5, 10))
sketch10.addConstraint(Sketcher.Constraint("Equal", 10, 12))
sketch10.addConstraint(Sketcher.Constraint("Equal", 7, 14))
sketch10.addConstraint(Sketcher.Constraint("Equal", 14, 15))
sketch10.addConstraint(Sketcher.Constraint("Vertical", 6, 3, 10, 3))
sketch10.addConstraint(Sketcher.Constraint("Vertical", 7, 3, 12, 3))
sketch10.addConstraint(Sketcher.Constraint("Diameter", 6, Q("3 mm")))
sketch10.addConstraint(Sketcher.Constraint("Radius", 3, Q("4.5 mm")))
sketch10.addConstraint(Sketcher.Constraint("DistanceX", 1, 1, 1, 2, Q("25.000001 mm")))
sketch10.addConstraint(Sketcher.Constraint("DistanceY", 10, 3, 5, 3, Q("30.999998 mm")))
sketch10.addConstraint(Sketcher.Constraint("DistanceY", 8, 2, 0, 2, Q("24.2 mm")))
sketch10.addConstraint(Sketcher.Constraint("DistanceY", 0, 2, 0, 1, Q("3.399941 mm")))
sketch10.addConstraint(Sketcher.Constraint("DistanceY", 0, 2, -1, 1, Q("3.366549 mm")))
sketch10.addConstraint(Sketcher.Constraint("DistanceX", 3, 3, -1, 1, Q("77.160965 mm")))
pocket3 = doc.addObject("PartDesign::Pocket", "Pocket002")
body.addObject(pocket3)
pocket3.Profile = sketch10
pocket3.Length = 110.980951

# Sketch on XZ plane
sketch11 = doc.addObject("Sketcher::SketchObject", "Sketch010")
body.addObject(sketch11)
sketch11.AttachmentSupport = (doc.XZ_Plane, [""])
sketch11.MapMode = "FlatFace"
sketch11.addGeometry(Part.LineSegment(App.Vector(-44.21, -3.37, 0), App.Vector(-44.21, -3.57, 0)), False)
sketch11.addGeometry(Part.LineSegment(App.Vector(-44.21, -3.57, 0), App.Vector(-41.21, -3.57, 0)), False)
sketch11.addGeometry(Part.LineSegment(App.Vector(-41.21, -3.57, 0), App.Vector(-41.21, -3.37, 0)), False)
sketch11.addGeometry(Part.LineSegment(App.Vector(-41.21, -3.37, 0), App.Vector(-44.21, -3.37, 0)), False)
sketch11.addGeometry(Part.LineSegment(App.Vector(-44.21, -27.37, 0), App.Vector(-44.21, -27.57, 0)), False)
sketch11.addGeometry(Part.LineSegment(App.Vector(-44.21, -27.57, 0), App.Vector(-41.21, -27.57, 0)), False)
sketch11.addGeometry(Part.LineSegment(App.Vector(-41.21, -27.57, 0), App.Vector(-41.21, -27.37, 0)), False)
sketch11.addGeometry(Part.LineSegment(App.Vector(-41.21, -27.37, 0), App.Vector(-44.21, -27.37, 0)), False)
sketch11.addConstraint(Sketcher.Constraint("Coincident", 0, 2, 1, 1))
sketch11.addConstraint(Sketcher.Constraint("Coincident", 1, 2, 2, 1))
sketch11.addConstraint(Sketcher.Constraint("Coincident", 2, 2, 3, 1))
sketch11.addConstraint(Sketcher.Constraint("Coincident", 3, 2, 0, 1))
sketch11.addConstraint(Sketcher.Constraint("Coincident", 4, 2, 5, 1))
sketch11.addConstraint(Sketcher.Constraint("Coincident", 5, 2, 6, 1))
sketch11.addConstraint(Sketcher.Constraint("Coincident", 6, 2, 7, 1))
sketch11.addConstraint(Sketcher.Constraint("Coincident", 7, 2, 4, 1))
sketch11.addConstraint(Sketcher.Constraint("Vertical", 0))
sketch11.addConstraint(Sketcher.Constraint("Horizontal", 1))
sketch11.addConstraint(Sketcher.Constraint("Vertical", 2))
sketch11.addConstraint(Sketcher.Constraint("Horizontal", 3))
sketch11.addConstraint(Sketcher.Constraint("Vertical", 4))
sketch11.addConstraint(Sketcher.Constraint("Horizontal", 5))
sketch11.addConstraint(Sketcher.Constraint("Vertical", 6))
sketch11.addConstraint(Sketcher.Constraint("Horizontal", 7))
sketch11.addConstraint(Sketcher.Constraint("Vertical", 3, 2, 4, 2))
sketch11.addConstraint(Sketcher.Constraint("Vertical", 2, 2, 5, 2))
sketch11.addConstraint(Sketcher.Constraint("Equal", 2, 4))
sketch11.addConstraint(Sketcher.Constraint("DistanceX", 1, 1, 1, 2, Q("3 mm")))
sketch11.addConstraint(Sketcher.Constraint("DistanceY", 0, 2, 0, 1, Q("0.2 mm")))
sketch11.addConstraint(Sketcher.Constraint("DistanceY", 4, 2, 0, 2, Q("24 mm")))
sketch11.addConstraint(Sketcher.Constraint("DistanceX", 0, 2, -1, 1, Q("44.212762 mm")))
sketch11.addConstraint(Sketcher.Constraint("DistanceY", 0, 2, -1, 1, Q("3.566549 mm")))
pocket4 = doc.addObject("PartDesign::Pocket", "Pocket003")
body.addObject(pocket4)
pocket4.Profile = sketch11
pocket4.Length = 13.8

# Sketch on XZ plane
sketch12 = doc.addObject("Sketcher::SketchObject", "Sketch011")
body.addObject(sketch12)
sketch12.AttachmentSupport = (doc.XZ_Plane, [""])
sketch12.MapMode = "FlatFace"
sketch12.addGeometry(Part.LineSegment(App.Vector(-41.21, -3.57, 0), App.Vector(-44.21, -3.57, 0)), False)
sketch12.addGeometry(Part.LineSegment(App.Vector(-44.21, -3.57, 0), App.Vector(-44.21, -3.37, 0)), False)
sketch12.addGeometry(Part.LineSegment(App.Vector(-44.21, -3.37, 0), App.Vector(-103.81, -3.37, 0)), False)
sketch12.addGeometry(Part.LineSegment(App.Vector(-103.81, -3.37, 0), App.Vector(-103.81, -27.57, 0)), False)
sketch12.addGeometry(Part.LineSegment(App.Vector(-103.81, -27.57, 0), App.Vector(-44.21, -27.57, 0)), False)
sketch12.addGeometry(Part.LineSegment(App.Vector(-44.21, -27.57, 0), App.Vector(-44.21, -27.37, 0)), False)
sketch12.addGeometry(Part.LineSegment(App.Vector(-44.21, -27.37, 0), App.Vector(-41.21, -27.37, 0)), False)
sketch12.addGeometry(Part.LineSegment(App.Vector(-41.21, -27.37, 0), App.Vector(-41.21, -3.57, 0)), False)
sketch12.addConstraint(Sketcher.Constraint("Coincident", 0, 2, 1, 1))
sketch12.addConstraint(Sketcher.Constraint("Coincident", 1, 2, 2, 1))
sketch12.addConstraint(Sketcher.Constraint("Coincident", 2, 2, 3, 1))
sketch12.addConstraint(Sketcher.Constraint("Coincident", 3, 2, 4, 1))
sketch12.addConstraint(Sketcher.Constraint("Coincident", 4, 2, 5, 1))
sketch12.addConstraint(Sketcher.Constraint("Coincident", 5, 2, 6, 1))
sketch12.addConstraint(Sketcher.Constraint("Coincident", 6, 2, 7, 1))
sketch12.addConstraint(Sketcher.Constraint("Coincident", 7, 2, 0, 1))
sketch12.addConstraint(Sketcher.Constraint("Horizontal", 0))
sketch12.addConstraint(Sketcher.Constraint("Vertical", 1))
sketch12.addConstraint(Sketcher.Constraint("Horizontal", 2))
sketch12.addConstraint(Sketcher.Constraint("Vertical", 3))
sketch12.addConstraint(Sketcher.Constraint("Horizontal", 4))
sketch12.addConstraint(Sketcher.Constraint("Vertical", 5))
sketch12.addConstraint(Sketcher.Constraint("Horizontal", 6))
sketch12.addConstraint(Sketcher.Constraint("Vertical", 7))
sketch12.addConstraint(Sketcher.Constraint("Vertical", 1, 2, 4, 2))
sketch12.addConstraint(Sketcher.Constraint("Equal", 1, 5))
sketch12.addConstraint(Sketcher.Constraint("DistanceX", 0, 2, 0, 1, Q("3 mm")))
sketch12.addConstraint(Sketcher.Constraint("DistanceX", 2, 2, 2, 1, Q("59.6 mm")))
sketch12.addConstraint(Sketcher.Constraint("DistanceY", 1, 1, 1, 2, Q("0.2 mm")))
sketch12.addConstraint(Sketcher.Constraint("DistanceY", 3, 2, 3, 1, Q("24.2 mm")))
sketch12.addConstraint(Sketcher.Constraint("DistanceX", 0, 2, -1, 1, Q("44.212762 mm")))
sketch12.addConstraint(Sketcher.Constraint("DistanceY", 0, 2, -1, 1, Q("3.566549 mm")))
pocket5 = doc.addObject("PartDesign::Pocket", "Pocket004")
body.addObject(pocket5)
pocket5.Profile = sketch12
pocket5.Length = 0.15

doc.recompute()
